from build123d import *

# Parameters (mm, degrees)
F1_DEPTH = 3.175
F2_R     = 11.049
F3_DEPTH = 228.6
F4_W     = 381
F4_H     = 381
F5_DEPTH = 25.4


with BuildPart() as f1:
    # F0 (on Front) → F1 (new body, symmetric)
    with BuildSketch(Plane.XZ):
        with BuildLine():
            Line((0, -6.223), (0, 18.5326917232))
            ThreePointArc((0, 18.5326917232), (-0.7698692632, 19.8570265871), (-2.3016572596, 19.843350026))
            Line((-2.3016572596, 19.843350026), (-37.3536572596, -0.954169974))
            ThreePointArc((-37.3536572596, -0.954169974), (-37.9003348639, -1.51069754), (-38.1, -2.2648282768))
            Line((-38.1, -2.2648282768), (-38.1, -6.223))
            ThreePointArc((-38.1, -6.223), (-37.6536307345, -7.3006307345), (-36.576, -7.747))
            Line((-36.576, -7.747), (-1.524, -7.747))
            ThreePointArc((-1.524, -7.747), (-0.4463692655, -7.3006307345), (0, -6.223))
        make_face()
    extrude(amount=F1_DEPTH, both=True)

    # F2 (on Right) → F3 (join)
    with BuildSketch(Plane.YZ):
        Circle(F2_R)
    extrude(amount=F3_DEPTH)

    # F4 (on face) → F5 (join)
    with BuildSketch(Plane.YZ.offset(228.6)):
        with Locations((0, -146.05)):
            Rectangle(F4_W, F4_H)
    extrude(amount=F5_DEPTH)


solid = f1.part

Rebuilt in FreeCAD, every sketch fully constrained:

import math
import FreeCAD as App
import Part
import Sketcher
from FreeCAD import Vector
Q = App.Units.Quantity


def add_polygon(sketch, points):
    """Adds a closed chain of lines whose ends are joined by coincident constraints."""
    first, n = sketch.GeometryCount, len(points)
    for a, b in zip(points, points[1:] + points[:1]):
        sketch.addGeometry(Part.LineSegment(App.Vector(*a, 0), App.Vector(*b, 0)), False)
    for i in range(n):
        sketch.addConstraint(Sketcher.Constraint("Coincident", first + i, 2, first + (i + 1) % n, 1))

doc = App.newDocument("Part")
params = doc.addObject("Spreadsheet::Sheet", "Params")
for row, (alias, value) in enumerate([
    ("sketch1_radius", "0.06 in"),
    ("sketch1_width", "1.38 in"),
    ("pad1_length", "0.25 in"),
    ("sketch2_diameter", "0.87 in"),
    ("pad2_length", "9 in"),
    ("sketch3_width", "15 in"),
    ("pad3_length", "1 in"),
], start=1):
    params.set(f"A{row}", alias)
    params.set(f"B{row}", "=" + value)
    params.setAlias(f"B{row}", alias)

body = doc.addObject("PartDesign::Body", "Body")

sketch1 = body.newObject("Sketcher::SketchObject", "Sketch")
sketch1.AttachmentSupport = (doc.getObject("XZ_Plane"), [""])
sketch1.MapMode = "FlatFace"
sketch1.addGeometry(Part.LineSegment(Vector(0, -6.2, 0), Vector(0, 18.5, 0)), False)
sketch1.addGeometry(Part.ArcOfCircle(Part.Circle(Vector(-1.5, 18.5, 0), Vector(0, 0, 1), 1.5), math.radians(0), math.radians(121)), False)
sketch1.addGeometry(Part.LineSegment(Vector(-2.3, 19.8, 0), Vector(-37.4, -1, 0)), False)
sketch1.addGeometry(Part.ArcOfCircle(Part.Circle(Vector(-36.6, -2.3, 0), Vector(0, 0, 1), 1.5), math.radians(121), math.radians(180)), False)
sketch1.addGeometry(Part.LineSegment(Vector(-38.1, -2.3, 0), Vector(-38.1, -6.2, 0)), False)
sketch1.addGeometry(Part.ArcOfCircle(Part.Circle(Vector(-36.6, -6.2, 0), Vector(0, 0, 1), 1.5), math.radians(180), math.radians(270)), False)
sketch1.addGeometry(Part.LineSegment(Vector(-36.6, -7.7, 0), Vector(-1.5, -7.7, 0)), False)
sketch1.addGeometry(Part.ArcOfCircle(Part.Circle(Vector(-1.5, -6.2, 0), Vector(0, 0, 1), 1.5), math.radians(-90), math.radians(0)), False)
sketch1.addConstraint(Sketcher.Constraint("Tangent", 0, 2, 1, 1))
sketch1.addConstraint(Sketcher.Constraint("Tangent", 1, 2, 2, 1))
sketch1.addConstraint(Sketcher.Constraint("Tangent", 2, 2, 3, 1))
sketch1.addConstraint(Sketcher.Constraint("Tangent", 3, 2, 4, 1))
sketch1.addConstraint(Sketcher.Constraint("Tangent", 4, 2, 5, 1))
sketch1.addConstraint(Sketcher.Constraint("Tangent", 5, 2, 6, 1))
sketch1.addConstraint(Sketcher.Constraint("Tangent", 6, 2, 7, 1))
sketch1.addConstraint(Sketcher.Constraint("Tangent", 7, 2, 0, 1))
sketch1.addConstraint(Sketcher.Constraint("Vertical", 0))
sketch1.addConstraint(Sketcher.Constraint("Vertical", 4))
sketch1.addConstraint(Sketcher.Constraint("Horizontal", 6))
sketch1.addConstraint(Sketcher.Constraint("Equal", 1, 3))
sketch1.addConstraint(Sketcher.Constraint("Equal", 3, 5))
sketch1.addConstraint(Sketcher.Constraint("Equal", 5, 7))
sketch1.addConstraint(Sketcher.Constraint("PointOnObject", 0, 2, -2))
sketch1.addConstraint(Sketcher.Constraint("Radius", 1, Q("0.06 in")))
sketch1.addConstraint(Sketcher.Constraint("DistanceX", 6, 1, 6, 2, Q("1.38 in")))
sketch1.addConstraint(Sketcher.Constraint("DistanceY", 5, 3, -1, 1, Q("0.245 in")))
sketch1.addConstraint(Sketcher.Constraint("DistanceY", 3, 3, 1, 3, Q("0.8188 in")))
sketch1.addConstraint(Sketcher.Constraint("DistanceY", 0, 1, 0, 2, Q("24.755692 mm")))
sketch1.setExpression("Constraints[15]", "Params.sketch1_radius")
sketch1.setExpression("Constraints[16]", "Params.sketch1_width")
pad1 = body.newObject("PartDesign::Pad", "Pad")
pad1.Profile = sketch1
pad1.setExpression("Length", "Params.pad1_length")
pad1.Midplane = True

sketch2 = body.newObject("Sketcher::SketchObject", "Sketch001")
sketch2.AttachmentSupport = (doc.getObject("YZ_Plane"), [""])
sketch2.MapMode = "FlatFace"
sketch2.addGeometry(Part.Circle(Vector(0, 0, 0), Vector(0, 0, 1), 11), False)
sketch2.addConstraint(Sketcher.Constraint("Coincident", 0, 3, -1, 1))
sketch2.addConstraint(Sketcher.Constraint("Diameter", 0, Q("0.87 in")))
sketch2.setExpression("Constraints[1]", "Params.sketch2_diameter")
pad2 = body.newObject("PartDesign::Pad", "Pad001")
pad2.Profile = sketch2
pad2.setExpression("Length", "Params.pad2_length")

sketch3 = body.newObject("Sketcher::SketchObject", "Sketch002")
sketch3.AttachmentSupport = (doc.getObject("YZ_Plane"), [""])
sketch3.MapMode = "FlatFace"
sketch3.AttachmentOffset = App.Placement(Vector(0, 0, 9 * 25.4), App.Rotation())
add_polygon(sketch3, [(-190, 44), (-190, -337), (190, -337), (190, 44)])
sketch3.addConstraint(Sketcher.Constraint("Vertical", 0))
sketch3.addConstraint(Sketcher.Constraint("Horizontal", 1))
sketch3.addConstraint(Sketcher.Constraint("Vertical", 2))
sketch3.addConstraint(Sketcher.Constraint("Horizontal", 3))
sketch3.addConstraint(Sketcher.Constraint("Equal", 3, 0))
sketch3.addConstraint(Sketcher.Constraint("DistanceX", 1, 1, 1, 2, Q("15 in")))
sketch3.addConstraint(Sketcher.Constraint("DistanceX", 0, 2, -1, 1, Q("7.5 in")))
sketch3.addConstraint(Sketcher.Constraint("DistanceY", 0, 2, -1, 1, Q("13.25 in")))
sketch3.setExpression("Constraints[9]", "Params.sketch3_width")
pad3 = body.newObject("PartDesign::Pad", "Pad002")
pad3.Profile = sketch3
pad3.setExpression("Length", "Params.pad3_length")

doc.recompute()
